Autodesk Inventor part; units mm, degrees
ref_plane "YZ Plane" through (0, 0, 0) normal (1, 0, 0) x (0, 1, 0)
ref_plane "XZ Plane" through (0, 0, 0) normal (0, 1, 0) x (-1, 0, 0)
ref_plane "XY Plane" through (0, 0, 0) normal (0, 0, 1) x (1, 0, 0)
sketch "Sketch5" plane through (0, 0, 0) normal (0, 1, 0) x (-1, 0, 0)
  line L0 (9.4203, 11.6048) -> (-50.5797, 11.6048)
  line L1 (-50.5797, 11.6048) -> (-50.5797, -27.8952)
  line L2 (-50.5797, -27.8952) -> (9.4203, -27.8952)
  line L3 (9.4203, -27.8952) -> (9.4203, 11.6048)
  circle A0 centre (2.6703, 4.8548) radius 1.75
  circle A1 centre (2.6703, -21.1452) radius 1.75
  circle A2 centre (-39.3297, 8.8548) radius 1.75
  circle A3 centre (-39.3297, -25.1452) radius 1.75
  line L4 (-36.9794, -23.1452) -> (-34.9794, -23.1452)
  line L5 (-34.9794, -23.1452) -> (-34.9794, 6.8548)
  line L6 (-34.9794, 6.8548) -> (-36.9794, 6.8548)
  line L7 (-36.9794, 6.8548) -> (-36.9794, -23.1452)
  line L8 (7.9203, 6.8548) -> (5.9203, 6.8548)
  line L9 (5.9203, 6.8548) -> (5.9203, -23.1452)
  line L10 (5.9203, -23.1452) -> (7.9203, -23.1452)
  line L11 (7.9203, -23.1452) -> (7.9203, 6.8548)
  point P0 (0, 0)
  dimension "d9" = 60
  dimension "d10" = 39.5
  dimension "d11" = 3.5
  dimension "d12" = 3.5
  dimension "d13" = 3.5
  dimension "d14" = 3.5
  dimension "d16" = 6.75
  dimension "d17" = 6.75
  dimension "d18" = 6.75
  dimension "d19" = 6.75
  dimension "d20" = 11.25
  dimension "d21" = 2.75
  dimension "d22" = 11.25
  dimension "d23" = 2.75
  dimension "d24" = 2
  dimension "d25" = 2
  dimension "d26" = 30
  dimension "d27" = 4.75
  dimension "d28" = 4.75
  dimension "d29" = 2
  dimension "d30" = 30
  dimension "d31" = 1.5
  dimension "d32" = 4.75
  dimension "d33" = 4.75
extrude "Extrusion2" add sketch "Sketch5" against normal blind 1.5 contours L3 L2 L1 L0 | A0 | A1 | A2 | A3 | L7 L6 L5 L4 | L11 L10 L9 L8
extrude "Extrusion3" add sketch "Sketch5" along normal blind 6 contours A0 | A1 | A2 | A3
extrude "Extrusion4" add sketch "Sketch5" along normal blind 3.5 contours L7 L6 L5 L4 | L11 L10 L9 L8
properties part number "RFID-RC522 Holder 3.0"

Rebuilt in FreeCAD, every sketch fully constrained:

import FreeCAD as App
import Part
import Sketcher

V = App.Vector
Q = App.Units.Quantity

doc = App.newDocument("Part")
body = doc.addObject("PartDesign::Body", "Body")

# Sketch on XZ plane
sketch1 = body.newObject("Sketcher::SketchObject", "Sketch")
sketch1.AttachmentSupport = (doc.getObject("XZ_Plane"), [""])
sketch1.MapMode = "FlatFace"
sketch1.addGeometry(Part.LineSegment(V(-9, -28, 0), V(-9, 12, 0)), False)
sketch1.addGeometry(Part.LineSegment(V(-9, 12, 0), V(51, 12, 0)), False)
sketch1.addGeometry(Part.LineSegment(V(51, 12, 0), V(51, -28, 0)), False)
sketch1.addGeometry(Part.LineSegment(V(51, -28, 0), V(-9, -28, 0)), False)
sketch1.addConstraint(Sketcher.Constraint("Coincident", 0, 2, 1, 1))
sketch1.addConstraint(Sketcher.Constraint("Coincident", 1, 2, 2, 1))
sketch1.addConstraint(Sketcher.Constraint("Coincident", 2, 2, 3, 1))
sketch1.addConstraint(Sketcher.Constraint("Coincident", 3, 2, 0, 1))
sketch1.addConstraint(Sketcher.Constraint("Vertical", 0))
sketch1.addConstraint(Sketcher.Constraint("Horizontal", 1))
sketch1.addConstraint(Sketcher.Constraint("Vertical", 2))
sketch1.addConstraint(Sketcher.Constraint("Horizontal", 3))
sketch1.addConstraint(Sketcher.Constraint("DistanceX", 1, 1, 1, 2, Q("60 mm")))
sketch1.addConstraint(Sketcher.Constraint("DistanceY", 0, 1, 0, 2, Q("39.5 mm")))
sketch1.addConstraint(Sketcher.Constraint("DistanceX", 0, 2, -1, 1, Q("9.4203 mm")))
sketch1.addConstraint(Sketcher.Constraint("DistanceY", -1, 1, 0, 2, Q("11.6048 mm")))
pad1 = body.newObject("PartDesign::Pad", "Pad")
pad1.Profile = sketch1
pad1.Length = 1.5

# Sketch on XZ plane
sketch2 = body.newObject("Sketcher::SketchObject", "Sketch001")
sketch2.AttachmentSupport = (doc.getObject("XZ_Plane"), [""])
sketch2.MapMode = "FlatFace"
sketch2.addGeometry(Part.Circle(V(-2.7, 4.9, 0), V(0, 0, 1), 1.8), False)
sketch2.addGeometry(Part.Circle(V(-2.7, -21.1, 0), V(0, 0, 1), 1.8), False)
sketch2.addGeometry(Part.Circle(V(39.3, 8.9, 0), V(0, 0, 1), 1.8), False)
sketch2.addGeometry(Part.Circle(V(39.3, -25.1, 0), V(0, 0, 1), 1.8), False)
sketch2.addConstraint(Sketcher.Constraint("Equal", 0, 1))
sketch2.addConstraint(Sketcher.Constraint("Equal", 1, 2))
sketch2.addConstraint(Sketcher.Constraint("Equal", 2, 3))
sketch2.addConstraint(Sketcher.Constraint("Vertical", 0, 3, 1, 3))
sketch2.addConstraint(Sketcher.Constraint("Vertical", 2, 3, 3, 3))
sketch2.addConstraint(Sketcher.Constraint("Diameter", 0, Q("3.5 mm")))
sketch2.addConstraint(Sketcher.Constraint("DistanceY", 1, 3, 2, 3, Q("30 mm")))
sketch2.addConstraint(Sketcher.Constraint("DistanceY", 3, 3, 0, 3, Q("30 mm")))
sketch2.addConstraint(Sketcher.Constraint("DistanceY", 1, 3, 0, 3, Q("26 mm")))
sketch2.addConstraint(Sketcher.Constraint("DistanceX", 0, 3, 2, 3, Q("42 mm")))
sketch2.addConstraint(Sketcher.Constraint("DistanceX", 0, 3, -1, 1, Q("2.6703 mm")))
sketch2.addConstraint(Sketcher.Constraint("DistanceY", -1, 1, 0, 3, Q("4.8548 mm")))
pad2 = body.newObject("PartDesign::Pad", "Pad001")
pad2.Profile = sketch2
pad2.Length = 6
pad2.Reversed = True

# Sketch on XZ plane
sketch3 = body.newObject("Sketcher::SketchObject", "Sketch002")
sketch3.AttachmentSupport = (doc.getObject("XZ_Plane"), [""])
sketch3.MapMode = "FlatFace"
sketch3.addGeometry(Part.LineSegment(V(37, 6.9, 0), V(37, -23.1, 0)), False)
sketch3.addGeometry(Part.LineSegment(V(37, -23.1, 0), V(35, -23.1, 0)), False)
sketch3.addGeometry(Part.LineSegment(V(35, -23.1, 0), V(35, 6.9, 0)), False)
sketch3.addGeometry(Part.LineSegment(V(35, 6.9, 0), V(37, 6.9, 0)), False)
sketch3.addGeometry(Part.LineSegment(V(-7.9, -23.1, 0), V(-7.9, 6.9, 0)), False)
sketch3.addGeometry(Part.LineSegment(V(-7.9, 6.9, 0), V(-5.9, 6.9, 0)), False)
sketch3.addGeometry(Part.LineSegment(V(-5.9, 6.9, 0), V(-5.9, -23.1, 0)), False)
sketch3.addGeometry(Part.LineSegment(V(-5.9, -23.1, 0), V(-7.9, -23.1, 0)), False)
sketch3.addConstraint(Sketcher.Constraint("Coincident", 0, 2, 1, 1))
sketch3.addConstraint(Sketcher.Constraint("Coincident", 1, 2, 2, 1))
sketch3.addConstraint(Sketcher.Constraint("Coincident", 2, 2, 3, 1))
sketch3.addConstraint(Sketcher.Constraint("Coincident", 3, 2, 0, 1))
sketch3.addConstraint(Sketcher.Constraint("Coincident", 4, 2, 5, 1))
sketch3.addConstraint(Sketcher.Constraint("Coincident", 5, 2, 6, 1))
sketch3.addConstraint(Sketcher.Constraint("Coincident", 6, 2, 7, 1))
sketch3.addConstraint(Sketcher.Constraint("Coincident", 7, 2, 4, 1))
sketch3.addConstraint(Sketcher.Constraint("Vertical", 0))
sketch3.addConstraint(Sketcher.Constraint("Horizontal", 1))
sketch3.addConstraint(Sketcher.Constraint("Vertical", 2))
sketch3.addConstraint(Sketcher.Constraint("Horizontal", 3))
sketch3.addConstraint(Sketcher.Constraint("Vertical", 4))
sketch3.addConstraint(Sketcher.Constraint("Horizontal", 5))
sketch3.addConstraint(Sketcher.Constraint("Vertical", 6))
sketch3.addConstraint(Sketcher.Constraint("Horizontal", 7))
sketch3.addConstraint(Sketcher.Constraint("Horizontal", 3, 2, 4, 2))
sketch3.addConstraint(Sketcher.Constraint("Horizontal", 1, 2, 6, 2))
sketch3.addConstraint(Sketcher.Constraint("Equal", 3, 5))
sketch3.addConstraint(Sketcher.Constraint("DistanceX", 1, 2, 1, 1, Q("2 mm")))
sketch3.addConstraint(Sketcher.Constraint("DistanceY", 0, 2, 0, 1, Q("30 mm")))
sketch3.addConstraint(Sketcher.Constraint("DistanceX", -1, 1, 0, 2, Q("36.9794 mm")))
sketch3.addConstraint(Sketcher.Constraint("DistanceY", 0, 2, -1, 1, Q("23.1452 mm")))
sketch3.addConstraint(Sketcher.Constraint("DistanceX", 4, 2, -1, 1, Q("7.9203 mm")))
pad3 = body.newObject("PartDesign::Pad", "Pad002")
pad3.Profile = sketch3
pad3.Length = 3.5
pad3.Reversed = True

doc.recompute()
